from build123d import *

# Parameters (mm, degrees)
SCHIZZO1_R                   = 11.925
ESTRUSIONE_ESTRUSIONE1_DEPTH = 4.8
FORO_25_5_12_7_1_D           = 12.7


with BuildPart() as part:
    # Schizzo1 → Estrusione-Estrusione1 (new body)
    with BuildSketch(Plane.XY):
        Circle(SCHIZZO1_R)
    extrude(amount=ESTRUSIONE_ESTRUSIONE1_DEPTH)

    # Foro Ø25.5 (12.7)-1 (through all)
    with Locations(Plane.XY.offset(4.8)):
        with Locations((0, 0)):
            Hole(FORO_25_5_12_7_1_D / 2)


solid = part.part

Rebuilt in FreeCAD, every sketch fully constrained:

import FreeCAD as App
import Part
import Sketcher

V = App.Vector
Q = App.Units.Quantity

doc = App.newDocument("Part")
body = doc.addObject("PartDesign::Body", "Body")

sketch1 = body.newObject("Sketcher::SketchObject", "Sketch")
sketch1.AttachmentSupport = (doc.getObject("XY_Plane"), [""])
sketch1.MapMode = "FlatFace"
sketch1.addGeometry(Part.Circle(V(0, 0, 0), V(0, 0, 1), 11.925), False)
sketch1.addConstraint([
    Sketcher.Constraint("Coincident", 0, 3, -1, 1),
    Sketcher.Constraint("Diameter", 0, Q("23.85 mm")),
])
pad1 = body.newObject("PartDesign::Pad", "Pad")
pad1.Profile = sketch1
pad1.Length = 4.8

sketch2 = body.newObject("Sketcher::SketchObject", "Sketch001")
sketch2.AttachmentSupport = (doc.getObject("XY_Plane"), [""])
sketch2.MapMode = "FlatFace"
sketch2.AttachmentOffset = App.Placement(V(0, 0, 4.8), App.Rotation())
sketch2.addGeometry(Part.Circle(V(0, 0, 0), V(0, 0, 1), 6.35), False)
sketch2.addConstraint([
    Sketcher.Constraint("Coincident", 0, 3, -1, 1),
    Sketcher.Constraint("Diameter", 0, Q("12.7 mm")),
])
doc.recompute()
hole = body.newObject("PartDesign::Hole", "Hole")
hole.Profile = sketch2
hole.ThreadType = "None"
hole.Diameter = 12.7
hole.DepthType = "ThroughAll"

doc.recompute()
